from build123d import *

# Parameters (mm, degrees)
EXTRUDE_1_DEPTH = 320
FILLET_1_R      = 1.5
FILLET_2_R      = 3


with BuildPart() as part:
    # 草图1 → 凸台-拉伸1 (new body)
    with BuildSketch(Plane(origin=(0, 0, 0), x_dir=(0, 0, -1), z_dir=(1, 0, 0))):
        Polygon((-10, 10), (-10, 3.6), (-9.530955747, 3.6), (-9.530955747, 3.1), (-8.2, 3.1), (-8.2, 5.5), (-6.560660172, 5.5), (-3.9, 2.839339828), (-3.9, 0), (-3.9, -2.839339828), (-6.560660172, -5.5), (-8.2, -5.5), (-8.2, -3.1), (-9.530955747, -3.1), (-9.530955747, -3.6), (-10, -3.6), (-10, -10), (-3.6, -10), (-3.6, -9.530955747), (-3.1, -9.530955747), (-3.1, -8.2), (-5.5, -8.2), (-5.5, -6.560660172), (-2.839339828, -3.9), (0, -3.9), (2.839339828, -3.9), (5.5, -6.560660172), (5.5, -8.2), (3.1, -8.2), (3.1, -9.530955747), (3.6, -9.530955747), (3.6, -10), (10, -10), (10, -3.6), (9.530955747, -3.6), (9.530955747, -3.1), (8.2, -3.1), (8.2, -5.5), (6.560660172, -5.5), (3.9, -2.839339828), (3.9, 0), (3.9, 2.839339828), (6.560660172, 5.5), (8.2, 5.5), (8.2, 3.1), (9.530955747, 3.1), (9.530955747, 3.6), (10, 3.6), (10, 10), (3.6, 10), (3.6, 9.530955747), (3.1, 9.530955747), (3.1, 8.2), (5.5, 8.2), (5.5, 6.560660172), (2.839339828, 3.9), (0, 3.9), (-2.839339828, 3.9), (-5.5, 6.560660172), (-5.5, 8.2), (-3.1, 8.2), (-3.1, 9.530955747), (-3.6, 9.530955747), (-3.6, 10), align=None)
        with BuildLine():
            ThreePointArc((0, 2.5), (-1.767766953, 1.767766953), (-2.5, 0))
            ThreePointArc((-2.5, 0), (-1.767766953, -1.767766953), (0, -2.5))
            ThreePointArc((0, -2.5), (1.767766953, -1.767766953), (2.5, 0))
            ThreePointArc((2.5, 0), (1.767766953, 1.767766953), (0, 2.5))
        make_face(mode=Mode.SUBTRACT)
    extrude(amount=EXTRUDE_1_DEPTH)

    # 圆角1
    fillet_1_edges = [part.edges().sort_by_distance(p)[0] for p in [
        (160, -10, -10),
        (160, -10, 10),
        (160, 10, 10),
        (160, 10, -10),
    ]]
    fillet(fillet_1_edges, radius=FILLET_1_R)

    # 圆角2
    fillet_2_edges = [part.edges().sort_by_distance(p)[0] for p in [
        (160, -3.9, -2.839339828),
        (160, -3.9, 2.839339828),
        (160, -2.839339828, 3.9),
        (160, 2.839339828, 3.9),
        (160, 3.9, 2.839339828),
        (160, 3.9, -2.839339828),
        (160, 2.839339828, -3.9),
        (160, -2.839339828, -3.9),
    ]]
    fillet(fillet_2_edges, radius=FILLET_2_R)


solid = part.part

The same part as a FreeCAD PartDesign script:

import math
import FreeCAD as App
import Part
import Sketcher


def edges_at(feature, points):
    """Names of the edges that pass closest to the given points."""
    edges = feature.Shape.Edges
    near = lambda p: min(range(len(edges)), key=lambda i: edges[i].distToShape(Part.Vertex(*p))[0])
    return sorted({f"Edge{near(p) + 1}" for p in points})


def add_polygon(sketch, points):
    """Adds a closed chain of lines whose ends are joined by coincident constraints."""
    first, n = sketch.GeometryCount, len(points)
    for a, b in zip(points, points[1:] + points[:1]):
        sketch.addGeometry(Part.LineSegment(App.Vector(*a, 0), App.Vector(*b, 0)), False)
    for i in range(n):
        sketch.addConstraint(Sketcher.Constraint("Coincident", first + i, 2, first + (i + 1) % n, 1))

doc = App.newDocument("Part")
params = doc.addObject("Spreadsheet::Sheet", "Params")
for row, (alias, value) in enumerate([
    ("sketch1_radius", "2.5 mm"),
    ("sketch1_width", "6.4 mm"),
    ("sketch1_width2", "0.5 mm"),
    ("sketch1_width3", "2.4 mm"),
    ("pad1_length", "320 mm"),
    ("fillet_radius", "1.5 mm"),
    ("fillet2_radius", "3 mm"),
], start=1):
    params.set(f"A{row}", alias)
    params.set(f"B{row}", "=" + value)
    params.setAlias(f"B{row}", alias)

body = doc.addObject("PartDesign::Body", "Body")

sketch1 = doc.addObject("Sketcher::SketchObject", "Sketch")
body.addObject(sketch1)
sketch1.AttachmentSupport = (doc.YZ_Plane, [""])
sketch1.MapMode = "FlatFace"
add_polygon(sketch1, [(10, 10), (3.6, 10), (3.6, 9.530956), (3.1, 9.530956), (3.1, 8.2), (5.5, 8.2), (5.5, 6.56066), (2.83934, 3.9), (-2.83934, 3.9), (-5.5, 6.56066), (-5.5, 8.2), (-3.1, 8.2), (-3.1, 9.530956), (-3.6, 9.530956), (-3.6, 10), (-10, 10), (-10, 3.6), (-9.530956, 3.6), (-9.530956, 3.1), (-8.2, 3.1), (-8.2, 5.5), (-6.56066, 5.5), (-3.9, 2.83934), (-3.9, -2.83934), (-6.56066, -5.5), (-8.2, -5.5), (-8.2, -3.1), (-9.530956, -3.1), (-9.530956, -3.6), (-10, -3.6), (-10, -10), (-3.6, -10), (-3.6, -9.530956), (-3.1, -9.530956), (-3.1, -8.2), (-5.5, -8.2), (-5.5, -6.56066), (-2.83934, -3.9), (2.83934, -3.9), (5.5, -6.56066), (5.5, -8.2), (3.1, -8.2), (3.1, -9.530956), (3.6, -9.530956), (3.6, -10), (10, -10), (10, -3.6), (9.530956, -3.6), (9.530956, -3.1), (8.2, -3.1), (8.2, -5.5), (6.56066, -5.5), (3.9, -2.83934), (3.9, 2.83934), (6.56066, 5.5), (8.2, 5.5), (8.2, 3.1), (9.530956, 3.1), (9.530956, 3.6), (10, 3.6)])
sketch1.addGeometry(Part.ArcOfCircle(Part.Circle(App.Vector(0, 0, 0), App.Vector(0, 0, 1), 2.5), math.radians(0), math.radians(90)), False)
sketch1.addGeometry(Part.ArcOfCircle(Part.Circle(App.Vector(0, 0, 0), App.Vector(0, 0, 1), 2.5), math.radians(-90), math.radians(0)), False)
sketch1.addGeometry(Part.ArcOfCircle(Part.Circle(App.Vector(0, 0, 0), App.Vector(0, 0, 1), 2.5), math.radians(180), math.radians(270)), False)
sketch1.addGeometry(Part.ArcOfCircle(Part.Circle(App.Vector(0, 0, 0), App.Vector(0, 0, 1), 2.5), math.radians(90), math.radians(180)), False)
sketch1.addConstraint([
    Sketcher.Constraint("Tangent", 60, 1, 61, 2),
    Sketcher.Constraint("Tangent", 61, 1, 62, 2),
    Sketcher.Constraint("Tangent", 62, 1, 63, 2),
    Sketcher.Constraint("Tangent", 63, 1, 60, 2),
    Sketcher.Constraint("Horizontal", 0),
    Sketcher.Constraint("Vertical", 1),
    Sketcher.Constraint("Horizontal", 2),
    Sketcher.Constraint("Vertical", 3),
    Sketcher.Constraint("Horizontal", 4),
    Sketcher.Constraint("Vertical", 5),
    Sketcher.Constraint("Horizontal", 7),
    Sketcher.Constraint("Vertical", 9),
    Sketcher.Constraint("Horizontal", 10),
    Sketcher.Constraint("Vertical", 11),
    Sketcher.Constraint("Horizontal", 12),
    Sketcher.Constraint("Vertical", 13),
    Sketcher.Constraint("Horizontal", 14),
    Sketcher.Constraint("Vertical", 15),
    Sketcher.Constraint("Horizontal", 16),
    Sketcher.Constraint("Vertical", 17),
    Sketcher.Constraint("Horizontal", 18),
    Sketcher.Constraint("Vertical", 19),
    Sketcher.Constraint("Horizontal", 20),
    Sketcher.Constraint("Vertical", 22),
    Sketcher.Constraint("Horizontal", 24),
    Sketcher.Constraint("Vertical", 25),
    Sketcher.Constraint("Horizontal", 26),
    Sketcher.Constraint("Vertical", 27),
    Sketcher.Constraint("Horizontal", 28),
    Sketcher.Constraint("Vertical", 29),
    Sketcher.Constraint("Horizontal", 30),
    Sketcher.Constraint("Vertical", 31),
    Sketcher.Constraint("Horizontal", 32),
    Sketcher.Constraint("Vertical", 33),
    Sketcher.Constraint("Horizontal", 34),
    Sketcher.Constraint("Vertical", 35),
    Sketcher.Constraint("Horizontal", 37),
    Sketcher.Constraint("Vertical", 39),
    Sketcher.Constraint("Horizontal", 40),
    Sketcher.Constraint("Vertical", 41),
    Sketcher.Constraint("Horizontal", 42),
    Sketcher.Constraint("Vertical", 43),
    Sketcher.Constraint("Horizontal", 44),
    Sketcher.Constraint("Vertical", 45),
    Sketcher.Constraint("Horizontal", 46),
    Sketcher.Constraint("Vertical", 47),
    Sketcher.Constraint("Horizontal", 48),
    Sketcher.Constraint("Vertical", 49),
    Sketcher.Constraint("Horizontal", 50),
    Sketcher.Constraint("Vertical", 52),
    Sketcher.Constraint("Horizontal", 54),
    Sketcher.Constraint("Vertical", 55),
    Sketcher.Constraint("Horizontal", 56),
    Sketcher.Constraint("Vertical", 57),
    Sketcher.Constraint("Horizontal", 58),
    Sketcher.Constraint("Vertical", 59),
    Sketcher.Constraint("Coincident", 60, 3, -1, 1),
    Sketcher.Constraint("Equal", 60, 61),
    Sketcher.Constraint("Symmetric", 0, 2, 30, 2, -1, 1),
    Sketcher.Constraint("Symmetric", 2, 2, 32, 2, -1, 1),
    Sketcher.Constraint("Symmetric", 4, 2, 34, 2, -1, 1),
    Sketcher.Constraint("Symmetric", 6, 2, 36, 2, -1, 1),
    Sketcher.Constraint("Symmetric", 8, 2, 38, 2, -1, 1),
    Sketcher.Constraint("Symmetric", 10, 2, 40, 2, -1, 1),
    Sketcher.Constraint("Symmetric", 12, 2, 42, 2, -1, 1),
    Sketcher.Constraint("Symmetric", 14, 2, 44, 2, -1, 1),
    Sketcher.Constraint("Symmetric", 16, 2, 46, 2, -1, 1),
    Sketcher.Constraint("Symmetric", 18, 2, 48, 2, -1, 1),
    Sketcher.Constraint("Symmetric", 20, 2, 50, 2, -1, 1),
    Sketcher.Constraint("Symmetric", 21, 2, 51, 2, -1, 1),
    Sketcher.Constraint("Symmetric", 23, 2, 53, 2, -1, 1),
    Sketcher.Constraint("Symmetric", 25, 2, 55, 2, -1, 1),
    Sketcher.Constraint("Symmetric", 27, 2, 57, 2, -1, 1),
    Sketcher.Constraint("Symmetric", 5, 2, 8, 2, -2),
    Sketcher.Constraint("Symmetric", 3, 2, 10, 2, -2),
    Sketcher.Constraint("Symmetric", 1, 2, 12, 2, -2),
    Sketcher.Constraint("Symmetric", 29, 2, 44, 2, -2),
    Sketcher.Constraint("Symmetric", 27, 2, 46, 2, -2),
    Sketcher.Constraint("Symmetric", 25, 2, 48, 2, -2),
    Sketcher.Constraint("Symmetric", 23, 2, 50, 2, -2),
    Sketcher.Constraint("PointOnObject", 60, 1, -1),
    Sketcher.Constraint("PointOnObject", 61, 1, -2),
    Sketcher.Constraint("PointOnObject", 62, 1, -1),
    Sketcher.Constraint("PointOnObject", 63, 1, -2),
    Sketcher.Constraint("Perpendicular", 6, 8),
    Sketcher.Constraint("Parallel", 8, 21),
    Sketcher.Constraint("Perpendicular", 21, 23),
    Sketcher.Constraint("Parallel", 23, 36),
    Sketcher.Constraint("Perpendicular", 36, 38),
    Sketcher.Constraint("Perpendicular", 51, 53),
    Sketcher.Constraint("Horizontal", 22, 2, 51, 2),
    Sketcher.Constraint("Vertical", 45, 2, 58, 2),
    Sketcher.Constraint("Equal", 58, 1),
    Sketcher.Constraint("Equal", 56, 3),
    Sketcher.Constraint("Equal", 54, 5),
    Sketcher.Constraint("Equal", 44, 15),
    Sketcher.Constraint("Equal", 42, 17),
    Sketcher.Constraint("Equal", 40, 19),
    Sketcher.Constraint("Equal", 37, 22),
    Sketcher.Constraint("Equal", 8, 21),
    Sketcher.Constraint("Radius", 60, 2.5),
    Sketcher.Constraint("DistanceX", 0, 2, 0, 1, 6.4),
    Sketcher.Constraint("DistanceX", 2, 2, 2, 1, 0.5),
    Sketcher.Constraint("DistanceX", 4, 1, 4, 2, 2.4),
    Sketcher.Constraint("DistanceY", -1, 1, 0, 2, 10.0),
    Sketcher.Constraint("DistanceY", -1, 1, 3, 2, 8.2),
    Sketcher.Constraint("DistanceY", -1, 1, 6, 2, 3.9),
    Sketcher.Constraint("DistanceX", 7, 2, 7, 1, 5.67868),
    Sketcher.Constraint("DistanceX", 16, 1, 16, 2, 0.469044),
])
sketch1.setExpression("Constraints[160]", "Params.sketch1_radius")
sketch1.setExpression("Constraints[161]", "Params.sketch1_width")
sketch1.setExpression("Constraints[162]", "Params.sketch1_width2")
sketch1.setExpression("Constraints[163]", "Params.sketch1_width3")
pad1 = doc.addObject("PartDesign::Pad", "Pad")
body.addObject(pad1)
pad1.Profile = sketch1
pad1.setExpression("Length", "Params.pad1_length")
doc.recompute()

fillet = doc.addObject("PartDesign::Fillet", "Fillet")
body.addObject(fillet)
fillet.Base = (pad1, edges_at(pad1, [
    (160, -10, -10),
    (160, -10, 10),
    (160, 10, 10),
    (160, 10, -10),
]))
fillet.setExpression("Radius", "Params.fillet_radius")
doc.recompute()

fillet2 = doc.addObject("PartDesign::Fillet", "Fillet001")
body.addObject(fillet2)
fillet2.Base = (fillet, edges_at(fillet, [
    (160, -3.9, -2.839),
    (160, -3.9, 2.839),
    (160, -2.839, 3.9),
    (160, 2.839, 3.9),
    (160, 3.9, 2.839),
    (160, 3.9, -2.839),
    (160, 2.839, -3.9),
    (160, -2.839, -3.9),
]))
fillet2.setExpression("Radius", "Params.fillet2_radius")

doc.recompute()
